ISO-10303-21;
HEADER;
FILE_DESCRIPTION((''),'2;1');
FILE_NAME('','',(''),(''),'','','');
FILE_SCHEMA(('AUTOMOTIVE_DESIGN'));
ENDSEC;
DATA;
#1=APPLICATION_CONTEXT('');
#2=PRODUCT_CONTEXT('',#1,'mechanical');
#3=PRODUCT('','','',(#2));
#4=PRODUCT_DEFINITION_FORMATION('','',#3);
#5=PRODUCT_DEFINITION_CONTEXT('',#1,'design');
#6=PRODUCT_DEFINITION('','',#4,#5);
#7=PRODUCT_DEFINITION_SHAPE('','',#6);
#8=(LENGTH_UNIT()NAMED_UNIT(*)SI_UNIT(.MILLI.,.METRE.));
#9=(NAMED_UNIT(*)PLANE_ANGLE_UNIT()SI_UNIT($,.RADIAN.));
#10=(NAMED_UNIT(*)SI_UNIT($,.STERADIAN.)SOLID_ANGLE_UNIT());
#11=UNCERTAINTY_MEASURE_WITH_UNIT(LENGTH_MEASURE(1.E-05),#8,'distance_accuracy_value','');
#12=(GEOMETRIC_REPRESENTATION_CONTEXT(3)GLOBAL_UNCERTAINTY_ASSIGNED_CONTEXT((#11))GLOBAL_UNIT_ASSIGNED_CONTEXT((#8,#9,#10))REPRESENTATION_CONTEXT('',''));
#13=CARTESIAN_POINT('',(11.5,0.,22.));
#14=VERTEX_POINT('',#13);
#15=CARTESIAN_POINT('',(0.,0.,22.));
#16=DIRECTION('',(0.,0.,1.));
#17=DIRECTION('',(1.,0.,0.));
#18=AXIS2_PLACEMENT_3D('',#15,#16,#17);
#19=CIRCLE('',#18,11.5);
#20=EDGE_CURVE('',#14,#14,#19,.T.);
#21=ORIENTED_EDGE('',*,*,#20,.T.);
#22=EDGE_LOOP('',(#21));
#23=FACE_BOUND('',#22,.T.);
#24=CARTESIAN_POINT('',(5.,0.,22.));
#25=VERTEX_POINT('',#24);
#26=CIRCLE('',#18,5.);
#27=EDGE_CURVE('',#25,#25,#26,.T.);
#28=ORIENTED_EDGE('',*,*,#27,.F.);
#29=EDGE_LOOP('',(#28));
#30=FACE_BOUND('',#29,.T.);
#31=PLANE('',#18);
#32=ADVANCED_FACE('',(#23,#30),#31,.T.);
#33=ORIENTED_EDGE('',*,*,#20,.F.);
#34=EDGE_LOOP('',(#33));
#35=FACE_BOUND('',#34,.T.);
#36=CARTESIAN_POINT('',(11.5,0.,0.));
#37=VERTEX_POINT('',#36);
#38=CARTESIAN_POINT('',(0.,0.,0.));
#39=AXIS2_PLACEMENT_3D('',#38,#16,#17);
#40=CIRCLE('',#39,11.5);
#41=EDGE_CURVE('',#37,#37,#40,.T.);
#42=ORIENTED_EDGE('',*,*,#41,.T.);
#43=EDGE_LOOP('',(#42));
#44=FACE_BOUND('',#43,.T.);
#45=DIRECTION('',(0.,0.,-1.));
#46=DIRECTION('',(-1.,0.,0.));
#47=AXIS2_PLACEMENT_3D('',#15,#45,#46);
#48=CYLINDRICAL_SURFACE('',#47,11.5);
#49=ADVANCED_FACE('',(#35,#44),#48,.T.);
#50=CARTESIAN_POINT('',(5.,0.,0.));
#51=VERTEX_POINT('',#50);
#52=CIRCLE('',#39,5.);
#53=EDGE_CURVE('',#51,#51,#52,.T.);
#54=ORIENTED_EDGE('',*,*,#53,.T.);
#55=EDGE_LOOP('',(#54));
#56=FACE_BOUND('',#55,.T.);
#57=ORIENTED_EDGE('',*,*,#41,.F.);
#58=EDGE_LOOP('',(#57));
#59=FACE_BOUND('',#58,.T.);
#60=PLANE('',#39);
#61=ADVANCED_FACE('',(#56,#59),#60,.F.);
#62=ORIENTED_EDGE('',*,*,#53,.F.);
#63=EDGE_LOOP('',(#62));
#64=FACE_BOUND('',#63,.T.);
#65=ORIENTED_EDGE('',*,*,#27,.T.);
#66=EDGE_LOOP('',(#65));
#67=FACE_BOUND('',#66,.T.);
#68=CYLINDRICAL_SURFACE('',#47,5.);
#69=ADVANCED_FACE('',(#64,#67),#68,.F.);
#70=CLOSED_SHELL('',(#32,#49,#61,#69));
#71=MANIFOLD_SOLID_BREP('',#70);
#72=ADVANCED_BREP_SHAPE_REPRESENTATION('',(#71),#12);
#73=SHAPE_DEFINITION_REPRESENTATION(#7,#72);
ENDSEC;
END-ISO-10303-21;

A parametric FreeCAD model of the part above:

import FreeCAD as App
import Part
import Sketcher

V = App.Vector
Q = App.Units.Quantity

doc = App.newDocument("Part")
params = doc.addObject("Spreadsheet::Sheet", "Params")
for row, (alias, value) in enumerate([
    ("sketch1_diameter", "23 mm"),
    ("sketch1_diameter2", "10 mm"),
    ("pad1_length", "22 mm"),
], start=1):
    params.set(f"A{row}", alias)
    params.set(f"B{row}", "=" + value)
    params.setAlias(f"B{row}", alias)

body = doc.addObject("PartDesign::Body", "Body")

sketch1 = doc.addObject("Sketcher::SketchObject", "Sketch")
body.addObject(sketch1)
sketch1.AttachmentSupport = (doc.XY_Plane, [""])
sketch1.MapMode = "FlatFace"
sketch1.addGeometry([
    Part.Circle(V(0, 0, 0), V(0, 0, 1), 12),
    Part.Circle(V(0, 0, 0), V(0, 0, 1), 5),
], False)
sketch1.addConstraint([
    Sketcher.Constraint("Coincident", 0, 3, -1, 1),
    Sketcher.Constraint("Coincident", 1, 3, -1, 1),
    Sketcher.Constraint("Diameter", 0, Q("23 mm")),
    Sketcher.Constraint("Diameter", 1, Q("10 mm")),
])
sketch1.setExpression("Constraints[2]", "Params.sketch1_diameter")
sketch1.setExpression("Constraints[3]", "Params.sketch1_diameter2")
pad1 = doc.addObject("PartDesign::Pad", "Pad")
body.addObject(pad1)
pad1.Profile = sketch1
pad1.setExpression("Length", "Params.pad1_length")

doc.recompute()
